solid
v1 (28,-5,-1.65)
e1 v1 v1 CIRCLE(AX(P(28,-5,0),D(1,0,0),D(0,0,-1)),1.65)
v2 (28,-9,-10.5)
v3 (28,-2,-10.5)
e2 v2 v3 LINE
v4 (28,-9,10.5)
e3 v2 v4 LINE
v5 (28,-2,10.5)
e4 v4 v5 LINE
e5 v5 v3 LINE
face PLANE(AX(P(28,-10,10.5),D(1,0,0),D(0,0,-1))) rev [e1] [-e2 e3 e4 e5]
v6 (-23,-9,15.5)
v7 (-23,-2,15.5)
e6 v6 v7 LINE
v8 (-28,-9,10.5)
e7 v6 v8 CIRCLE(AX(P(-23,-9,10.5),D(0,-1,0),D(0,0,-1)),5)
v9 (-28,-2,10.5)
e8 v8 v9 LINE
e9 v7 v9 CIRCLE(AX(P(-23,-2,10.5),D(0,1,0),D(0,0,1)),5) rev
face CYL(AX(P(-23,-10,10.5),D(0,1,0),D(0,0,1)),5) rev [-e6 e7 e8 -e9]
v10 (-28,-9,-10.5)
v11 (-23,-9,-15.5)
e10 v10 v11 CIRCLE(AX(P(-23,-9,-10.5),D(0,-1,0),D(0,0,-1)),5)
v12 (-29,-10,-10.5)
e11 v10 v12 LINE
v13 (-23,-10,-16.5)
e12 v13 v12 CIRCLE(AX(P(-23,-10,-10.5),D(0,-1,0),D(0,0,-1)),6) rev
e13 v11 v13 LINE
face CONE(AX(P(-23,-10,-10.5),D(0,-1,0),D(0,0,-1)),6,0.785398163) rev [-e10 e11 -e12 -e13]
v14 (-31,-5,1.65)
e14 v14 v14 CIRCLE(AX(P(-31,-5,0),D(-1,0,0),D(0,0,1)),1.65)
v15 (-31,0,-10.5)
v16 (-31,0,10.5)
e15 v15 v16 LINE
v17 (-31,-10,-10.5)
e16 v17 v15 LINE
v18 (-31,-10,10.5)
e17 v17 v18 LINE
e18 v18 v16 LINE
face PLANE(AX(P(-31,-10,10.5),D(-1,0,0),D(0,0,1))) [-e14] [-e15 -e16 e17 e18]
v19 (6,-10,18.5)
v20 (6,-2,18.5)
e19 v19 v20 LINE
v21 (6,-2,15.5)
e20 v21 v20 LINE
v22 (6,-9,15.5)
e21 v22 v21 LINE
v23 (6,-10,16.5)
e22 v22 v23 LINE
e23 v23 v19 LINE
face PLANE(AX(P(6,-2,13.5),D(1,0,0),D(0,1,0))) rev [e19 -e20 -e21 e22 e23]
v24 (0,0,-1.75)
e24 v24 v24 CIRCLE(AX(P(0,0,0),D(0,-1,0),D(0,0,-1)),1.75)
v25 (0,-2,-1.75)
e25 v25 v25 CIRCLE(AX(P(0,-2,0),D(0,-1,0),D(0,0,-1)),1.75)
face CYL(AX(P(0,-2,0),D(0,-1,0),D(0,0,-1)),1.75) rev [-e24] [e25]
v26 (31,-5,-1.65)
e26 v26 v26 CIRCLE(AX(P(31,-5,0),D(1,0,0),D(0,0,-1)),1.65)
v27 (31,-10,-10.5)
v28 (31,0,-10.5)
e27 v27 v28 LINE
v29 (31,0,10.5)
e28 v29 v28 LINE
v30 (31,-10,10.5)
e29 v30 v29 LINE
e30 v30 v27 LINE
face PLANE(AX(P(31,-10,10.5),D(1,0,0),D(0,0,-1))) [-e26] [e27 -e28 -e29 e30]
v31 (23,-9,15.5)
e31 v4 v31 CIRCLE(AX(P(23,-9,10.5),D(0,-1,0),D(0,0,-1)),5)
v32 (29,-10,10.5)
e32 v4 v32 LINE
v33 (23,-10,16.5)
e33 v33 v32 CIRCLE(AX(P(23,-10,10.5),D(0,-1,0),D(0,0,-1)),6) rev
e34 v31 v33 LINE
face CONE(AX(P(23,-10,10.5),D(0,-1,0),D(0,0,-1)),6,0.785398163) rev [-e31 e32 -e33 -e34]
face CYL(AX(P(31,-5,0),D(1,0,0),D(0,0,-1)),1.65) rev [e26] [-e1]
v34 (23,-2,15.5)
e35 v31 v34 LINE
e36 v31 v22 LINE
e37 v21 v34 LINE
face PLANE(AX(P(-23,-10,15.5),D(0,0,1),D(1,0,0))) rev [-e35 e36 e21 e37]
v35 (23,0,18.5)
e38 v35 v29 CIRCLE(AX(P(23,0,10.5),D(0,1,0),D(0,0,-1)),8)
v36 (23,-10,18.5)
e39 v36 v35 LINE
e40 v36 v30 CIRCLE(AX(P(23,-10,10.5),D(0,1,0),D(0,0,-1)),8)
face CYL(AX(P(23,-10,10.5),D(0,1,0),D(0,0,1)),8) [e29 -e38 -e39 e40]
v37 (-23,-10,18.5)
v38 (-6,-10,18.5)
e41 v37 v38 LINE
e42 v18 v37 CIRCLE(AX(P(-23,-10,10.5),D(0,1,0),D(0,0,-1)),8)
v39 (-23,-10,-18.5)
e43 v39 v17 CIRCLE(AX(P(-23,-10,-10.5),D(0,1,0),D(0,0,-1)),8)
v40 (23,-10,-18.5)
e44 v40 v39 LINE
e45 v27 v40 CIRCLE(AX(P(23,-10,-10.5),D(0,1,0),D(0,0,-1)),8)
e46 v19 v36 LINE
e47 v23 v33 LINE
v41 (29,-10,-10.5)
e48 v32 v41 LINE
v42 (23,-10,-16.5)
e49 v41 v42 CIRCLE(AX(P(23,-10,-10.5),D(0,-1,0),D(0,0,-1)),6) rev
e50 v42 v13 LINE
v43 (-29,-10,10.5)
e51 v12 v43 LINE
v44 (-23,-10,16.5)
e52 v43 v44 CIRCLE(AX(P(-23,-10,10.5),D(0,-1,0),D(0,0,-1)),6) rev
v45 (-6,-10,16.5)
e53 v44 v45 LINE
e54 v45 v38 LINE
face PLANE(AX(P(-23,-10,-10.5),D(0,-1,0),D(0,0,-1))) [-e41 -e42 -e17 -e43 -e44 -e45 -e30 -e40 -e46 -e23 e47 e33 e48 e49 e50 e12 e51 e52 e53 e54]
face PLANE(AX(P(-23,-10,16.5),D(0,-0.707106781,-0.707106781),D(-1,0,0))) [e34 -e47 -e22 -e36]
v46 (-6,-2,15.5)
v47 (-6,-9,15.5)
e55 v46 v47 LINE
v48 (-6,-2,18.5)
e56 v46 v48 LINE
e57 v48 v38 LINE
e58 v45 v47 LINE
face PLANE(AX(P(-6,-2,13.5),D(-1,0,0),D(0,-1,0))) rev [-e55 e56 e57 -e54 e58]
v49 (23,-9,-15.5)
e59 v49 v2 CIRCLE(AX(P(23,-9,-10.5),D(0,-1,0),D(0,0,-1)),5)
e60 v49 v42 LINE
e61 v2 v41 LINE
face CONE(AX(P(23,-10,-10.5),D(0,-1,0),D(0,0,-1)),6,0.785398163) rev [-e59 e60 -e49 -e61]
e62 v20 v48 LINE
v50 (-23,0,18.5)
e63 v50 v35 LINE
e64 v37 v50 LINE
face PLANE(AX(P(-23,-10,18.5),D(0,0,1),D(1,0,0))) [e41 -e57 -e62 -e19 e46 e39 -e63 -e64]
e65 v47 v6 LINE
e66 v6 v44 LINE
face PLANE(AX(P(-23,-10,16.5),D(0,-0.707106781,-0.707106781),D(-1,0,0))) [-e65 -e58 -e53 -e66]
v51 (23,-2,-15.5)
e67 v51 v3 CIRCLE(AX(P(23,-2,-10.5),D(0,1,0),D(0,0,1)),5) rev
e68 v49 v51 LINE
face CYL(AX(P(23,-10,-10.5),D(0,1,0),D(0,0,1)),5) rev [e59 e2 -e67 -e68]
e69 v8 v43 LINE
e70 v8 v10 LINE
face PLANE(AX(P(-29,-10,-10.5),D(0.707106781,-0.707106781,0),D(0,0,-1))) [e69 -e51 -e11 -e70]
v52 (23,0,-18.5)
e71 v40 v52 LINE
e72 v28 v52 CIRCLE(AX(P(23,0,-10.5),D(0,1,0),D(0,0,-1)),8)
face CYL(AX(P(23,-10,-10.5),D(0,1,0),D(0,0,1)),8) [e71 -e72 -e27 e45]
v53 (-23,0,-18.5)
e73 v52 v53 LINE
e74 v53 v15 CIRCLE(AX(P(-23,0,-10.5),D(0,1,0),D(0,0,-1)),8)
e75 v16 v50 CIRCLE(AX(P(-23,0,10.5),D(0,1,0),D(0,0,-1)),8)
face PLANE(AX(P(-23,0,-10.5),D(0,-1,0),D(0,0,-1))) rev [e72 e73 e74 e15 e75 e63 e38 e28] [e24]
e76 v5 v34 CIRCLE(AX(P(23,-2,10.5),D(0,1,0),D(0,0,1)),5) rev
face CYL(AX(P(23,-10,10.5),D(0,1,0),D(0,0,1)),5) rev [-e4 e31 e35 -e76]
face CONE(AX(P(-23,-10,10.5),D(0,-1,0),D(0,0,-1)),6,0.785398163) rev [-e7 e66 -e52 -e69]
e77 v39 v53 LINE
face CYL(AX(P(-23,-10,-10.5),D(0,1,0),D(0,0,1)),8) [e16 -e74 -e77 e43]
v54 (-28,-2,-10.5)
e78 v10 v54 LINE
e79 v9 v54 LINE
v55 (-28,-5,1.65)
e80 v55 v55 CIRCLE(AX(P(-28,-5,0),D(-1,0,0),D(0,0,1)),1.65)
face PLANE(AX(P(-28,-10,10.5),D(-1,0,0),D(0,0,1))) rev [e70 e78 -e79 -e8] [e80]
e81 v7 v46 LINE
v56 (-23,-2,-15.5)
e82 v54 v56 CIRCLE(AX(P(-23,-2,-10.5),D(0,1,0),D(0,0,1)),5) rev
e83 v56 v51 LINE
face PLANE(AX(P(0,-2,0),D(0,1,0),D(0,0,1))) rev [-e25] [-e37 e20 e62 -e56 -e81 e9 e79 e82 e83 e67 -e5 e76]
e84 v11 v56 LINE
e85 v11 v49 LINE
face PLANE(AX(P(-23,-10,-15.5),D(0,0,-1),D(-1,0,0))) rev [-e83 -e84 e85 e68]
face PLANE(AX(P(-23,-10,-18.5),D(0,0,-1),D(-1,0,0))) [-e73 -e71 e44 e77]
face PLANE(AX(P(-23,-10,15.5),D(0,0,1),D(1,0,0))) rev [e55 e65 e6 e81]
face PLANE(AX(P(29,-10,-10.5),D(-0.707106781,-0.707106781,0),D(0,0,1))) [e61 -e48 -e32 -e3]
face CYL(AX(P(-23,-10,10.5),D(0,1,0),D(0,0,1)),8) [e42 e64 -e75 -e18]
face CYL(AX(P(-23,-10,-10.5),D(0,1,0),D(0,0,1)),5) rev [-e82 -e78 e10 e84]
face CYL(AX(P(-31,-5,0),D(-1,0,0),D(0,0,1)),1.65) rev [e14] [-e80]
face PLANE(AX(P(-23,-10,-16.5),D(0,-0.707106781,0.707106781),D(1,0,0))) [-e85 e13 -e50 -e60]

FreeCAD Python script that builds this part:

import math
import FreeCAD as App
import Part
import Sketcher
Q = App.Units.Quantity


def edges_at(feature, points):
    """Names of the edges that pass closest to the given points."""
    edges = feature.Shape.Edges
    near = lambda p: min(range(len(edges)), key=lambda i: edges[i].distToShape(Part.Vertex(*p))[0])
    return sorted({f"Edge{near(p) + 1}" for p in points})

doc = App.newDocument("Part")
body = doc.addObject("PartDesign::Body", "Body")

sketch1 = body.newObject("Sketcher::SketchObject", "Sketch")
sketch1.AttachmentSupport = (doc.getObject("XZ_Plane"), [""])
sketch1.MapMode = "FlatFace"
sketch1.addGeometry([
    Part.LineSegment(App.Vector(23, -18.5, 0), App.Vector(-23, -18.5, 0)),
    Part.ArcOfCircle(Part.Circle(App.Vector(-23, -10.5, 0), App.Vector(0, 0, 1), 8), math.radians(-180), math.radians(-90)),
    Part.LineSegment(App.Vector(-31, -10.5, 0), App.Vector(-31, 10.5, 0)),
    Part.ArcOfCircle(Part.Circle(App.Vector(-23, 10.5, 0), App.Vector(0, 0, 1), 8), math.radians(90), math.radians(180)),
    Part.LineSegment(App.Vector(-23, 18.5, 0), App.Vector(23, 18.5, 0)),
    Part.ArcOfCircle(Part.Circle(App.Vector(23, 10.5, 0), App.Vector(0, 0, 1), 8), math.radians(0), math.radians(90)),
    Part.LineSegment(App.Vector(31, 10.5, 0), App.Vector(31, -10.5, 0)),
    Part.ArcOfCircle(Part.Circle(App.Vector(23, -10.5, 0), App.Vector(0, 0, 1), 8), math.radians(-90), math.radians(0)),
    Part.ArcOfCircle(Part.Circle(App.Vector(-23, 10.5, 0), App.Vector(0, 0, 1), 5), math.radians(90), math.radians(180)),
    Part.LineSegment(App.Vector(-28, 10.5, 0), App.Vector(-28, -10.5, 0)),
    Part.ArcOfCircle(Part.Circle(App.Vector(-23, -10.5, 0), App.Vector(0, 0, 1), 5), math.radians(180), math.radians(270)),
    Part.LineSegment(App.Vector(-23, -15.5, 0), App.Vector(23, -15.5, 0)),
    Part.ArcOfCircle(Part.Circle(App.Vector(23, -10.5, 0), App.Vector(0, 0, 1), 5), math.radians(-90), math.radians(0)),
    Part.LineSegment(App.Vector(28, -10.5, 0), App.Vector(28, 10.5, 0)),
    Part.ArcOfCircle(Part.Circle(App.Vector(23, 10.5, 0), App.Vector(0, 0, 1), 5), math.radians(0), math.radians(90)),
    Part.LineSegment(App.Vector(23, 15.5, 0), App.Vector(-23, 15.5, 0)),
], False)
sketch1.addConstraint([
    Sketcher.Constraint("Tangent", 0, 2, 1, 2),
    Sketcher.Constraint("Tangent", 1, 1, 2, 1),
    Sketcher.Constraint("Tangent", 2, 2, 3, 2),
    Sketcher.Constraint("Tangent", 3, 1, 4, 1),
    Sketcher.Constraint("Tangent", 4, 2, 5, 2),
    Sketcher.Constraint("Tangent", 5, 1, 6, 1),
    Sketcher.Constraint("Tangent", 6, 2, 7, 2),
    Sketcher.Constraint("Tangent", 7, 1, 0, 1),
    Sketcher.Constraint("Tangent", 8, 2, 9, 1),
    Sketcher.Constraint("Tangent", 9, 2, 10, 1),
    Sketcher.Constraint("Tangent", 10, 2, 11, 1),
    Sketcher.Constraint("Tangent", 11, 2, 12, 1),
    Sketcher.Constraint("Tangent", 12, 2, 13, 1),
    Sketcher.Constraint("Tangent", 13, 2, 14, 1),
    Sketcher.Constraint("Tangent", 14, 2, 15, 1),
    Sketcher.Constraint("Tangent", 15, 2, 8, 1),
    Sketcher.Constraint("Horizontal", 0),
    Sketcher.Constraint("Vertical", 2),
    Sketcher.Constraint("Horizontal", 4),
    Sketcher.Constraint("Vertical", 6),
    Sketcher.Constraint("Vertical", 9),
    Sketcher.Constraint("Horizontal", 11),
    Sketcher.Constraint("Vertical", 13),
    Sketcher.Constraint("Horizontal", 15),
    Sketcher.Constraint("Coincident", 8, 3, 3, 3),
    Sketcher.Constraint("Coincident", 10, 3, 1, 3),
    Sketcher.Constraint("Coincident", 12, 3, 7, 3),
    Sketcher.Constraint("Equal", 1, 3),
    Sketcher.Constraint("Equal", 3, 5),
    Sketcher.Constraint("Equal", 5, 7),
    Sketcher.Constraint("Equal", 12, 14),
    Sketcher.Constraint("Symmetric", 1, 3, 5, 3, -1, 1),
    Sketcher.Constraint("Radius", 1, Q("8 mm")),
    Sketcher.Constraint("Radius", 8, Q("5 mm")),
    Sketcher.Constraint("DistanceX", 0, 2, 0, 1, Q("46 mm")),
    Sketcher.Constraint("DistanceY", 2, 1, 2, 2, Q("21 mm")),
])
pad1 = body.newObject("PartDesign::Pad", "Pad")
pad1.Profile = sketch1
pad1.Length = 10

sketch2 = body.newObject("Sketcher::SketchObject", "Sketch001")
sketch2.AttachmentSupport = (doc.getObject("XZ_Plane"), [""])
sketch2.MapMode = "FlatFace"
sketch2.addGeometry([
    Part.ArcOfCircle(Part.Circle(App.Vector(-23, -10.5, 0), App.Vector(0, 0, 1), 5), math.radians(180), math.radians(270)),
    Part.LineSegment(App.Vector(-28, -10.5, 0), App.Vector(-28, 10.5, 0)),
    Part.ArcOfCircle(Part.Circle(App.Vector(-23, 10.5, 0), App.Vector(0, 0, 1), 5), math.radians(90), math.radians(180)),
    Part.LineSegment(App.Vector(-23, 15.5, 0), App.Vector(23, 15.5, 0)),
    Part.ArcOfCircle(Part.Circle(App.Vector(23, 10.5, 0), App.Vector(0, 0, 1), 5), math.radians(0), math.radians(90)),
    Part.LineSegment(App.Vector(28, 10.5, 0), App.Vector(28, -10.5, 0)),
    Part.ArcOfCircle(Part.Circle(App.Vector(23, -10.5, 0), App.Vector(0, 0, 1), 5), math.radians(-90), math.radians(0)),
    Part.LineSegment(App.Vector(23, -15.5, 0), App.Vector(-23, -15.5, 0)),
], False)
sketch2.addConstraint([
    Sketcher.Constraint("Tangent", 0, 1, 1, 1),
    Sketcher.Constraint("Tangent", 1, 2, 2, 2),
    Sketcher.Constraint("Tangent", 2, 1, 3, 1),
    Sketcher.Constraint("Tangent", 3, 2, 4, 2),
    Sketcher.Constraint("Tangent", 4, 1, 5, 1),
    Sketcher.Constraint("Tangent", 5, 2, 6, 2),
    Sketcher.Constraint("Tangent", 6, 1, 7, 1),
    Sketcher.Constraint("Tangent", 7, 2, 0, 2),
    Sketcher.Constraint("Vertical", 1),
    Sketcher.Constraint("Horizontal", 3),
    Sketcher.Constraint("Vertical", 5),
    Sketcher.Constraint("Horizontal", 7),
    Sketcher.Constraint("Equal", 0, 2),
    Sketcher.Constraint("Equal", 2, 4),
    Sketcher.Constraint("Equal", 4, 6),
    Sketcher.Constraint("Symmetric", 0, 3, 4, 3, -1, 1),
    Sketcher.Constraint("Radius", 0, Q("5 mm")),
    Sketcher.Constraint("DistanceX", 3, 1, 3, 2, Q("46 mm")),
    Sketcher.Constraint("DistanceY", 1, 1, 1, 2, Q("21 mm")),
])
pad2 = body.newObject("PartDesign::Pad", "Pad001")
pad2.Profile = sketch2
pad2.Length = 2

sketch3 = body.newObject("Sketcher::SketchObject", "Sketch002")
sketch3.AttachmentSupport = (doc.getObject("XZ_Plane"), [""])
sketch3.MapMode = "FlatFace"
sketch3.AttachmentOffset = App.Placement(App.Vector(0, 0, 5), App.Rotation())
sketch3.addGeometry([
    Part.LineSegment(App.Vector(20.00858, 0, 0), App.Vector(31, 0, 0)),
    Part.LineSegment(App.Vector(31, 0, 0), App.Vector(31, -1.65, 0)),
    Part.LineSegment(App.Vector(31, -1.65, 0), App.Vector(21, -1.65, 0)),
    Part.LineSegment(App.Vector(21, -1.65, 0), App.Vector(20.00858, 0, 0)),
], False)
sketch3.addConstraint([
    Sketcher.Constraint("Coincident", 0, 2, 1, 1),
    Sketcher.Constraint("Coincident", 1, 2, 2, 1),
    Sketcher.Constraint("Coincident", 2, 2, 3, 1),
    Sketcher.Constraint("Coincident", 3, 2, 0, 1),
    Sketcher.Constraint("Horizontal", 0),
    Sketcher.Constraint("Vertical", 1),
    Sketcher.Constraint("Horizontal", 2),
    Sketcher.Constraint("PointOnObject", 0, 2, -1),
    Sketcher.Constraint("DistanceX", 2, 2, 2, 1, Q("10 mm")),
    Sketcher.Constraint("Angle", 3, Q("121 deg")),
    Sketcher.Constraint("DistanceX", -1, 1, 0, 2, Q("31 mm")),
    Sketcher.Constraint("DistanceY", 1, 2, 1, 1, Q("1.65 mm")),
])
groove = body.newObject("PartDesign::Groove", "Groove")
groove.Profile = sketch3
groove.ReferenceAxis = (sketch3, ["H_Axis"])
groove.Angle = 360
doc.recompute()

mirrored = body.newObject("PartDesign::Mirrored", "Mirrored")
mirrored.Originals = [groove]
mirrored.MirrorPlane = (doc.getObject("YZ_Plane"), [""])
body.Tip = mirrored

sketch4 = body.newObject("Sketcher::SketchObject", "Sketch003")
sketch4.AttachmentSupport = (doc.getObject("XZ_Plane"), [""])
sketch4.MapMode = "FlatFace"
sketch4.AttachmentOffset = App.Placement(App.Vector(0, 0, 2), App.Rotation())
sketch4.addGeometry(Part.Circle(App.Vector(0, 0, 0), App.Vector(0, 0, 1), 1.75), False)
sketch4.addConstraint([
    Sketcher.Constraint("Coincident", 0, 3, -1, 1),
    Sketcher.Constraint("Diameter", 0, Q("3.5 mm")),
])
doc.recompute()
hole = body.newObject("PartDesign::Hole", "Hole")
hole.Profile = sketch4
hole.ThreadType = "None"
hole.Diameter = 3.5
hole.DepthType = "ThroughAll"

sketch5 = body.newObject("Sketcher::SketchObject", "Sketch004")
sketch5.AttachmentSupport = (doc.getObject("XY_Plane"), [""])
sketch5.MapMode = "FlatFace"
sketch5.AttachmentOffset = App.Placement(App.Vector(0, 0, 18.5), App.Rotation())
sketch5.addGeometry([
    Part.LineSegment(App.Vector(-6, -2, 0), App.Vector(-6, -10, 0)),
    Part.LineSegment(App.Vector(-6, -10, 0), App.Vector(6, -10, 0)),
    Part.LineSegment(App.Vector(6, -10, 0), App.Vector(6, -2, 0)),
    Part.LineSegment(App.Vector(6, -2, 0), App.Vector(-6, -2, 0)),
], False)
sketch5.addConstraint([
    Sketcher.Constraint("Coincident", 0, 2, 1, 1),
    Sketcher.Constraint("Coincident", 1, 2, 2, 1),
    Sketcher.Constraint("Coincident", 2, 2, 3, 1),
    Sketcher.Constraint("Coincident", 3, 2, 0, 1),
    Sketcher.Constraint("Vertical", 0),
    Sketcher.Constraint("Horizontal", 1),
    Sketcher.Constraint("Vertical", 2),
    Sketcher.Constraint("Horizontal", 3),
    Sketcher.Constraint("DistanceX", 1, 1, 1, 2, Q("12 mm")),
    Sketcher.Constraint("DistanceY", 0, 2, 0, 1, Q("8 mm")),
    Sketcher.Constraint("DistanceX", 0, 2, -1, 1, Q("6 mm")),
    Sketcher.Constraint("DistanceY", 0, 2, -1, 1, Q("10 mm")),
])
pocket1 = body.newObject("PartDesign::Pocket", "Pocket")
pocket1.Profile = sketch5
pocket1.Length = 5
doc.recompute()

chamfer = body.newObject("PartDesign::Chamfer", "Chamfer")
chamfer.Base = (pocket1, edges_at(pocket1, [
    (26.536, -10, -14.036),
    (28, -10, 0),
    (26.536, -10, 14.036),
    (-14.5, -10, 15.5),
    (-26.536, -10, 14.036),
    (-28, -10, 0),
    (-26.536, -10, -14.036),
    (0, -10, -15.5),
    (14.5, -10, 15.5),
]))
chamfer.Size = 1

doc.recompute()
